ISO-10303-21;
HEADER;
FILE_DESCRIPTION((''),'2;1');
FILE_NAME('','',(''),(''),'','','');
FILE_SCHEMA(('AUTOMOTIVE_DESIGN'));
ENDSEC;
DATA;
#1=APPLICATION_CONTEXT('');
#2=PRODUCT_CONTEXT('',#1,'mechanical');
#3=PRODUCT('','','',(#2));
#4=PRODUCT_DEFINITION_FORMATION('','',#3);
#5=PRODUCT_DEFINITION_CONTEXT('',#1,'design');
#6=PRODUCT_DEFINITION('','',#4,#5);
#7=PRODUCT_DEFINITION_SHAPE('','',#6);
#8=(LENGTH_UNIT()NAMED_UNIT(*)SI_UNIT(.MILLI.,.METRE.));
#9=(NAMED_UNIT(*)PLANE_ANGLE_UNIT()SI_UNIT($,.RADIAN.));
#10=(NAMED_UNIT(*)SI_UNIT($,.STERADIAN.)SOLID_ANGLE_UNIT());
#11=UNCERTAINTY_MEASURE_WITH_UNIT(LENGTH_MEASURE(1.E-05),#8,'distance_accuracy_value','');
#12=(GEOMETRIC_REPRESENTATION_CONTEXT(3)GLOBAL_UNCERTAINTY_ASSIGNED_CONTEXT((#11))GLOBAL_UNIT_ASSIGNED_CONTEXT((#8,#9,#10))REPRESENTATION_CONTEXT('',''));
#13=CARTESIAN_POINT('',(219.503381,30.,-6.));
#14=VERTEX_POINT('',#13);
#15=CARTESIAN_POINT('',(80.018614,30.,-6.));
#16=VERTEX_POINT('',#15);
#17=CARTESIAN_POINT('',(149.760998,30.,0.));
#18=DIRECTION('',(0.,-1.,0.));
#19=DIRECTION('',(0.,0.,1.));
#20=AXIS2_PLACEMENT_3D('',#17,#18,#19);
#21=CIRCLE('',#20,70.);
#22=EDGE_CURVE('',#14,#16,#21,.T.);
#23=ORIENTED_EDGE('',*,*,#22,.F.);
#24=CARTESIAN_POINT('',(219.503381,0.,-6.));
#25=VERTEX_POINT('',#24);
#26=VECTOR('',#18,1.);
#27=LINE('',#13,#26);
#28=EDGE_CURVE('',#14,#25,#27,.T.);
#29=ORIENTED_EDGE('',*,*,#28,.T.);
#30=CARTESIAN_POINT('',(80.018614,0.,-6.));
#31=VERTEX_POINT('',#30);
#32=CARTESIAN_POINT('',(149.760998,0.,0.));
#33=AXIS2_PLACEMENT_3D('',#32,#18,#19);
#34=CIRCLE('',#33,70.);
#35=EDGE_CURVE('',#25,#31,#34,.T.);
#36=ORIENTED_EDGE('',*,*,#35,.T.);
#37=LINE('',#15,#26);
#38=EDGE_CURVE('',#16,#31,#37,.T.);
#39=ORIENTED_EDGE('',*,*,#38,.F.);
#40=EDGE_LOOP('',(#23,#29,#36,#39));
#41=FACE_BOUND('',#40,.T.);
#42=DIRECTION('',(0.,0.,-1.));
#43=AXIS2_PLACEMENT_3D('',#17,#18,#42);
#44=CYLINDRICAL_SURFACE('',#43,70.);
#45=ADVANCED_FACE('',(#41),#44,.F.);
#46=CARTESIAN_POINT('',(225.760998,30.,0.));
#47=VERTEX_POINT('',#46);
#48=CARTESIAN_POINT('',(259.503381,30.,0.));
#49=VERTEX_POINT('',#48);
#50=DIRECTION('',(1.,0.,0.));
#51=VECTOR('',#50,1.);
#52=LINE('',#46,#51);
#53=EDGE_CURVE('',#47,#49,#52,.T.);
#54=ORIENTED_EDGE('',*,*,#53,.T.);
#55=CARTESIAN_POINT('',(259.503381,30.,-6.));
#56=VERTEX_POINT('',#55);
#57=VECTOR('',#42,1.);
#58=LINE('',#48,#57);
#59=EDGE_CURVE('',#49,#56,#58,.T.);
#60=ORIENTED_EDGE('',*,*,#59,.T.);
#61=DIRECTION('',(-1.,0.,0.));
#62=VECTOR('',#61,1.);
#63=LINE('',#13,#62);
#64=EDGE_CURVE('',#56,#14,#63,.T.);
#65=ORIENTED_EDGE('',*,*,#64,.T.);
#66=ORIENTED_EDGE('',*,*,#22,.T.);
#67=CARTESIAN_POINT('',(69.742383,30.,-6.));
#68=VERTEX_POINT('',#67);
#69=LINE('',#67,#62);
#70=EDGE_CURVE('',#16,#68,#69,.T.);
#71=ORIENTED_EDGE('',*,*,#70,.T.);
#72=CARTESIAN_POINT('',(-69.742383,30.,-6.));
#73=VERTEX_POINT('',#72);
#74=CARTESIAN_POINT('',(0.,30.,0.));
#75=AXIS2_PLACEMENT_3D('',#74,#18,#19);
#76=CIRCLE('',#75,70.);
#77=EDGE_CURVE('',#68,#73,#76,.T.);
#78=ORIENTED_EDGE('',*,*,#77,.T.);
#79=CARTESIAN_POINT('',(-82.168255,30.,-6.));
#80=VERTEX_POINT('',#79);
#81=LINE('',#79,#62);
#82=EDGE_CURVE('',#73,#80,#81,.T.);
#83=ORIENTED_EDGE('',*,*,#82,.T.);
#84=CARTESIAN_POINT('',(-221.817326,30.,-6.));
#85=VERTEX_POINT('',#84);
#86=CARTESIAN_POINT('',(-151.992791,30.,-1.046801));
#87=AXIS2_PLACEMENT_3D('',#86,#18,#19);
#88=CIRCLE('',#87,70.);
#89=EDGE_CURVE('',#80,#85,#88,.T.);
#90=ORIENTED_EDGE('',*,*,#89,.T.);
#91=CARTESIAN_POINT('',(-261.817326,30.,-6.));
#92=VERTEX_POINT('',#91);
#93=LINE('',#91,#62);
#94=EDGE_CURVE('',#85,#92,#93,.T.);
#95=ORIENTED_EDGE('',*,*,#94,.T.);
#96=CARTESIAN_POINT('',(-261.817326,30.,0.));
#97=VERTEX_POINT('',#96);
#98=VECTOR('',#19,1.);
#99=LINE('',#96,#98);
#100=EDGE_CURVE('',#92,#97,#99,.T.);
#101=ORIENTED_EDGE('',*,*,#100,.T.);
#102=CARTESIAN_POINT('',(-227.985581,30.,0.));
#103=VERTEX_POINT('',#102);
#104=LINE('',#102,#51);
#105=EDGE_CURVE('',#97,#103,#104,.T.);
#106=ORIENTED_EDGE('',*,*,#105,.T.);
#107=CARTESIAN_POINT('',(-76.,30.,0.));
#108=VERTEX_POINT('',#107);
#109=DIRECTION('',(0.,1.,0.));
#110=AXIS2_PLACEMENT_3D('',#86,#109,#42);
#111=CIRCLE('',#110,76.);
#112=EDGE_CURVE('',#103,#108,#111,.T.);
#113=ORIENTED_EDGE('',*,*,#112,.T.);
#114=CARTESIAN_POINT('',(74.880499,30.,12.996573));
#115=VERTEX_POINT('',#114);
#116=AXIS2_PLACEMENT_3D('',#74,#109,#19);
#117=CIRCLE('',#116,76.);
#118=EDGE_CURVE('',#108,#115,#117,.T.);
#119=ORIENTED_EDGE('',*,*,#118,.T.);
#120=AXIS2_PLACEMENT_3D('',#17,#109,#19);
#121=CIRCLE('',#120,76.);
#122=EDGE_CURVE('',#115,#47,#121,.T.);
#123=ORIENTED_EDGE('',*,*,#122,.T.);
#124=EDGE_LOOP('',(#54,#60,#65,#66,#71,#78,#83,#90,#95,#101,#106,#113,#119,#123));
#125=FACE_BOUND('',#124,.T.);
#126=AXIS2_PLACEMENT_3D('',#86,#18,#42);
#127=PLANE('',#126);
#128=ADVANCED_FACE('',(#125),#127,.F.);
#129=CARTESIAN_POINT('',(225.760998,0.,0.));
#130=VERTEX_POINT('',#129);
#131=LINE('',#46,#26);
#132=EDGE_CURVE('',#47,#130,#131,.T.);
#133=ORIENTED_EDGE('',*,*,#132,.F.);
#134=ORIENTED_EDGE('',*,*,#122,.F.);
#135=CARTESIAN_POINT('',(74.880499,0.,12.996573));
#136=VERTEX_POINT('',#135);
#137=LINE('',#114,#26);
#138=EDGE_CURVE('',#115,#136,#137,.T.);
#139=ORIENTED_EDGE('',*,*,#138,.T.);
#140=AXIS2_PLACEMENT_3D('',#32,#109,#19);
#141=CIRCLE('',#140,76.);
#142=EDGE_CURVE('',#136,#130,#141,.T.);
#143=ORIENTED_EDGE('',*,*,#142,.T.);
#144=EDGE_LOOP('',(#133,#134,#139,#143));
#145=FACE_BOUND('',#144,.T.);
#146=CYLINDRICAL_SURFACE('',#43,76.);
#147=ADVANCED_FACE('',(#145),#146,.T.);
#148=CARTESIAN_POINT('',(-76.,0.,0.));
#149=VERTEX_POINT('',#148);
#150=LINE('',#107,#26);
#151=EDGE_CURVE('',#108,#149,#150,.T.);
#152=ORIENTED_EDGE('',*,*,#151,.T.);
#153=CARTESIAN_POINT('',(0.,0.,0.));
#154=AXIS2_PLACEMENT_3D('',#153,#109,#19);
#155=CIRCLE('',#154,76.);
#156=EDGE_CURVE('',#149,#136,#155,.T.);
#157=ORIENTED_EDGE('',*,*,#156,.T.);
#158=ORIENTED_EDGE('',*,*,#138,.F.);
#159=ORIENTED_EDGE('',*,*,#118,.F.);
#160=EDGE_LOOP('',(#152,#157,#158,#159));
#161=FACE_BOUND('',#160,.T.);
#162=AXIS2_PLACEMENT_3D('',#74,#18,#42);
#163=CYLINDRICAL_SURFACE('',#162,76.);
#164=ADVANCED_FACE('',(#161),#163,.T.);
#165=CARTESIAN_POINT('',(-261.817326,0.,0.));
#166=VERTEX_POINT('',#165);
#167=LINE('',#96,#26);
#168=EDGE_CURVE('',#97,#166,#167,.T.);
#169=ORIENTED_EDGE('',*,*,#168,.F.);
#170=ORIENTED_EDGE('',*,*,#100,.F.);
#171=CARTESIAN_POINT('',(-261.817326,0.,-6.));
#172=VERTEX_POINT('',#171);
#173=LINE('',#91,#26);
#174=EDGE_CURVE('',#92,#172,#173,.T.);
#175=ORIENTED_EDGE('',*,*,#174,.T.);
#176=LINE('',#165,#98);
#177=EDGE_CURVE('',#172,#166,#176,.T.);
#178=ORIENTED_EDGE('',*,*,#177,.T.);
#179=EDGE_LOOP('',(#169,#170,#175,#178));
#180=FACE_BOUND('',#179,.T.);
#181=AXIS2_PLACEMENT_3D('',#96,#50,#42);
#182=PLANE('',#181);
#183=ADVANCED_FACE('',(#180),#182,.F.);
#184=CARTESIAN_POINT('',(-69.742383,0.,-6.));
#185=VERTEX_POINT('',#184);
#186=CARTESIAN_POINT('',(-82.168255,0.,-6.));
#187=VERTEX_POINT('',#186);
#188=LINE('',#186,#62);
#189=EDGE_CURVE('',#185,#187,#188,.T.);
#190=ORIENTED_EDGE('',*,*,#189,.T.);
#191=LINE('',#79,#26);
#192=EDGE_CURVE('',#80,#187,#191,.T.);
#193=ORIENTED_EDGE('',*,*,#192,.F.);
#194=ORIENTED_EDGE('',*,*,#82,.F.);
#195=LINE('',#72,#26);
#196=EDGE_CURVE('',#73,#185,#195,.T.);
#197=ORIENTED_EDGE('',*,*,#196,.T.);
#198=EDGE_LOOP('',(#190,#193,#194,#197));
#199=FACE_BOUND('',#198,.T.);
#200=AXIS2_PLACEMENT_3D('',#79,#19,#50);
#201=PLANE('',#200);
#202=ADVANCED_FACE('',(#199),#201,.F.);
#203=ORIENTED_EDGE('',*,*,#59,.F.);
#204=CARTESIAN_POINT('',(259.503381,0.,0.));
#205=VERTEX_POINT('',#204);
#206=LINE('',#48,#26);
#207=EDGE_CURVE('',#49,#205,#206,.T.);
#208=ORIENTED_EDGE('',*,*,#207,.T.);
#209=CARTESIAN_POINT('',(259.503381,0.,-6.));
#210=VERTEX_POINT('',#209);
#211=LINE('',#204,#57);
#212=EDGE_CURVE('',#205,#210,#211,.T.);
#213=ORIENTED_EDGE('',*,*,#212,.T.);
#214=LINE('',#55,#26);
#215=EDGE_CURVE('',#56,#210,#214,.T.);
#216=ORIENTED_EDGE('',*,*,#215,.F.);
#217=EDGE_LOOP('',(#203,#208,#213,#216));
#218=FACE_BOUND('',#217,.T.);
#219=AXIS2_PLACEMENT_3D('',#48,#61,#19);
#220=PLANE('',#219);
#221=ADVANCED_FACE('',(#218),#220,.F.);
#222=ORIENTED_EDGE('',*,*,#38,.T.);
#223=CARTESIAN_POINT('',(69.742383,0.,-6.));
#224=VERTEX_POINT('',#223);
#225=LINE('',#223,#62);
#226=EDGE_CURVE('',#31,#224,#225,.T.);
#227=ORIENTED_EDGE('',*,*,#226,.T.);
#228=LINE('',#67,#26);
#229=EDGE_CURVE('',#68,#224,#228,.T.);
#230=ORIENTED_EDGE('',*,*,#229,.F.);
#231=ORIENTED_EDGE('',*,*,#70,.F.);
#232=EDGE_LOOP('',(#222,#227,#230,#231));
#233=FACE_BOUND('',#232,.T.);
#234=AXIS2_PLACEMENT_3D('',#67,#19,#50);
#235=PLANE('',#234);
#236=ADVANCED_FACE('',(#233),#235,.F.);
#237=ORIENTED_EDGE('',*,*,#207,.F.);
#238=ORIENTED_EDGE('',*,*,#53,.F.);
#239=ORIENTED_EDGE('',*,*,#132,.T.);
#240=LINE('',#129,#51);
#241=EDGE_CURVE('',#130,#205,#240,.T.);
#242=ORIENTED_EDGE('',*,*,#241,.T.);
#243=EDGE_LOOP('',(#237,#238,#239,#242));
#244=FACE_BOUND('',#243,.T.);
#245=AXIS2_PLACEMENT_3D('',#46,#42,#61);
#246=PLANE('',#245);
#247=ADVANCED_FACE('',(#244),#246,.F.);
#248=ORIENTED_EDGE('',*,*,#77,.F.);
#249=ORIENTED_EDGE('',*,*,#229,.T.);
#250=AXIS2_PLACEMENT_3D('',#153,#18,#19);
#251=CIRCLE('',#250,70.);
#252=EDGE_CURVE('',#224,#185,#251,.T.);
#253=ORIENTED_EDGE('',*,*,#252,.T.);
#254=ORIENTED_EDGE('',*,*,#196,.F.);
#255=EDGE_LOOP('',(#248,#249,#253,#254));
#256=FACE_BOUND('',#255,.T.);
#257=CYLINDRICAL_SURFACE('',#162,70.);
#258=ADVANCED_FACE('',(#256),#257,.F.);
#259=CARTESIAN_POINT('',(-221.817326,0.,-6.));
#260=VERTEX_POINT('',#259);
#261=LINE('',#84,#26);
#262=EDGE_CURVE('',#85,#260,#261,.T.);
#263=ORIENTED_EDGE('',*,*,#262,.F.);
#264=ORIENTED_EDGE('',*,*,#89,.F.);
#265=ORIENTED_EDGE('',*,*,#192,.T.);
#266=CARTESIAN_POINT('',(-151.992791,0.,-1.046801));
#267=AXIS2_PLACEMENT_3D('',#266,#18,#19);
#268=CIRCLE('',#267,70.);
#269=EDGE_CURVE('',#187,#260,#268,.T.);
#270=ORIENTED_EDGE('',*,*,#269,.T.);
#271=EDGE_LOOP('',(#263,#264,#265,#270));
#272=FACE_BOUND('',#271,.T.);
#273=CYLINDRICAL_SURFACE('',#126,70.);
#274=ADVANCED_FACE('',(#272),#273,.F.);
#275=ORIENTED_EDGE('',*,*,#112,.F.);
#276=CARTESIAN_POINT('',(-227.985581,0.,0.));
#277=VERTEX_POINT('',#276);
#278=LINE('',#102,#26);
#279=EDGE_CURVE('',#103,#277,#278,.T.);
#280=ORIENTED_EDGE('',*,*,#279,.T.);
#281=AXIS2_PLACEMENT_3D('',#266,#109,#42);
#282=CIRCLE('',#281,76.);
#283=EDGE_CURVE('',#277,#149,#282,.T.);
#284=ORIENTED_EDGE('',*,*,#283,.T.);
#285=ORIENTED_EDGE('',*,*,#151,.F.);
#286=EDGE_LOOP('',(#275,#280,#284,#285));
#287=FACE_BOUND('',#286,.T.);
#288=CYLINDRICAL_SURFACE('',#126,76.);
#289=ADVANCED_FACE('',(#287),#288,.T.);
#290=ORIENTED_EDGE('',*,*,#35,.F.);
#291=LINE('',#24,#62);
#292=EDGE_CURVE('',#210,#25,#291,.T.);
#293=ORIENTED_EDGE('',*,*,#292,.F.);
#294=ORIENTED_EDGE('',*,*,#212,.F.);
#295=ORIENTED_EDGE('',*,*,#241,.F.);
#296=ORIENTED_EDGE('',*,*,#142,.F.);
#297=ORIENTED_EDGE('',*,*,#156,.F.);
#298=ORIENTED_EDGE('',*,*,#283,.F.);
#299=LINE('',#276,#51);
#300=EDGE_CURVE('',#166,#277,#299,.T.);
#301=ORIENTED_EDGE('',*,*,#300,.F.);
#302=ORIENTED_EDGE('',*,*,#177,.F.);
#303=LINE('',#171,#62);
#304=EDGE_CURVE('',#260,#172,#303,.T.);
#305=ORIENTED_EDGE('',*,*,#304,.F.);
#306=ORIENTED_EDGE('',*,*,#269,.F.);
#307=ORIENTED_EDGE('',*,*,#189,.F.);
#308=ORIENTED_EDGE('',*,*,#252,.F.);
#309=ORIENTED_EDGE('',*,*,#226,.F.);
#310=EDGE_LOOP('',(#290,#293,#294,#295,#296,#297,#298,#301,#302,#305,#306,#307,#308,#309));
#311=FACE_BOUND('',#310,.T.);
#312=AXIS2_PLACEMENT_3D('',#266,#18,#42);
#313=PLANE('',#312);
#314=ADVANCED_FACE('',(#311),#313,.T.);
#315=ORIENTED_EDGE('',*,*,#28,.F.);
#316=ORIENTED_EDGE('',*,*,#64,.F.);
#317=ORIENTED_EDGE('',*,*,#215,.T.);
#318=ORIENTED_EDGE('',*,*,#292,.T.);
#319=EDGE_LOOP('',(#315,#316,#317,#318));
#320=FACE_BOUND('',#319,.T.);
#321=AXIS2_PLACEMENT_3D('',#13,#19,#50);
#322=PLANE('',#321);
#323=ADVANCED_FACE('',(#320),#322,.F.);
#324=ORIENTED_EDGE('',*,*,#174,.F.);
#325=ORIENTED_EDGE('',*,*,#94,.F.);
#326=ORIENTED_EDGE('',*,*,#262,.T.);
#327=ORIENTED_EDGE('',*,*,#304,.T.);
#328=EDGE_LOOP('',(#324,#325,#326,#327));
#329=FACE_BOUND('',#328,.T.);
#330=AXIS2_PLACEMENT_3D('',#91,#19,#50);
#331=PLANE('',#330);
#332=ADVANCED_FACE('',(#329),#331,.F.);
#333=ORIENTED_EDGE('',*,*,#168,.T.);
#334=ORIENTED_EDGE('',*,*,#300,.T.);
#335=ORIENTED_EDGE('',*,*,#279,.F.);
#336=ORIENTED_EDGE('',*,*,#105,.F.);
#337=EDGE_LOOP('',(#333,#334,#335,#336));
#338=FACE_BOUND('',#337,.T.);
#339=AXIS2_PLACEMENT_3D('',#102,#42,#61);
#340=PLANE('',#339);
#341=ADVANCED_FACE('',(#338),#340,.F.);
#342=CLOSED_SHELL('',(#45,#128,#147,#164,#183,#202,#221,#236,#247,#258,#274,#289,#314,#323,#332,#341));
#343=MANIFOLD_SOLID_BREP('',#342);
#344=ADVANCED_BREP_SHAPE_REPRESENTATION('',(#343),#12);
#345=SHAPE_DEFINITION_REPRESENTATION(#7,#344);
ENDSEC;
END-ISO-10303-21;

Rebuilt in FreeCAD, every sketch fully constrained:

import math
import FreeCAD as App
import Part
import Sketcher

V = App.Vector
Q = App.Units.Quantity

doc = App.newDocument("Part")
body = doc.addObject("PartDesign::Body", "Body")

# Sketch on XZ plane
sketch1 = body.newObject("Sketcher::SketchObject", "Sketch")
sketch1.AttachmentSupport = (doc.getObject("XZ_Plane"), [""])
sketch1.MapMode = "FlatFace"
sketch1.addGeometry(Part.LineSegment(V(-262, 0, 0), V(-228, 0, 0)), False)
sketch1.addGeometry(Part.ArcOfCircle(Part.Circle(V(-152, -1, 0), V(0, 0, 1), 76), math.radians(1), math.radians(179)), False)
sketch1.addGeometry(Part.ArcOfCircle(Part.Circle(V(0, 0, 0), V(0, 0, 1), 76), math.radians(10), math.radians(180)), False)
sketch1.addGeometry(Part.ArcOfCircle(Part.Circle(V(150, 0, 0), V(0, 0, 1), 76), math.radians(0), math.radians(170)), False)
sketch1.addGeometry(Part.LineSegment(V(226, 0, 0), V(260, 0, 0)), False)
sketch1.addGeometry(Part.LineSegment(V(260, 0, 0), V(260, -6, 0)), False)
sketch1.addGeometry(Part.LineSegment(V(260, -6, 0), V(220, -6, 0)), False)
sketch1.addGeometry(Part.ArcOfCircle(Part.Circle(V(150, 0, 0), V(0, 0, 1), 70), math.radians(-5), math.radians(185)), False)
sketch1.addGeometry(Part.LineSegment(V(80, -6, 0), V(70, -6, 0)), False)
sketch1.addGeometry(Part.ArcOfCircle(Part.Circle(V(0, 0, 0), V(0, 0, 1), 70), math.radians(-5), math.radians(185)), False)
sketch1.addGeometry(Part.LineSegment(V(-70, -6, 0), V(-82, -6, 0)), False)
sketch1.addGeometry(Part.ArcOfCircle(Part.Circle(V(-152, -1, 0), V(0, 0, 1), 70), math.radians(-4), math.radians(184)), False)
sketch1.addGeometry(Part.LineSegment(V(-222, -6, 0), V(-262, -6, 0)), False)
sketch1.addGeometry(Part.LineSegment(V(-262, -6, 0), V(-262, 0, 0)), False)
sketch1.addConstraint(Sketcher.Constraint("Coincident", 0, 2, 1, 2))
sketch1.addConstraint(Sketcher.Constraint("Coincident", 1, 1, 2, 2))
sketch1.addConstraint(Sketcher.Constraint("Coincident", 2, 1, 3, 2))
sketch1.addConstraint(Sketcher.Constraint("Coincident", 3, 1, 4, 1))
sketch1.addConstraint(Sketcher.Constraint("Coincident", 4, 2, 5, 1))
sketch1.addConstraint(Sketcher.Constraint("Coincident", 5, 2, 6, 1))
sketch1.addConstraint(Sketcher.Constraint("Coincident", 6, 2, 7, 1))
sketch1.addConstraint(Sketcher.Constraint("Coincident", 7, 2, 8, 1))
sketch1.addConstraint(Sketcher.Constraint("Coincident", 8, 2, 9, 1))
sketch1.addConstraint(Sketcher.Constraint("Coincident", 9, 2, 10, 1))
sketch1.addConstraint(Sketcher.Constraint("Coincident", 10, 2, 11, 1))
sketch1.addConstraint(Sketcher.Constraint("Coincident", 11, 2, 12, 1))
sketch1.addConstraint(Sketcher.Constraint("Coincident", 12, 2, 13, 1))
sketch1.addConstraint(Sketcher.Constraint("Coincident", 13, 2, 0, 1))
sketch1.addConstraint(Sketcher.Constraint("Horizontal", 0))
sketch1.addConstraint(Sketcher.Constraint("Horizontal", 4))
sketch1.addConstraint(Sketcher.Constraint("Vertical", 5))
sketch1.addConstraint(Sketcher.Constraint("Horizontal", 6))
sketch1.addConstraint(Sketcher.Constraint("Horizontal", 8))
sketch1.addConstraint(Sketcher.Constraint("Horizontal", 10))
sketch1.addConstraint(Sketcher.Constraint("Horizontal", 12))
sketch1.addConstraint(Sketcher.Constraint("Vertical", 13))
sketch1.addConstraint(Sketcher.Constraint("Coincident", 2, 3, -1, 1))
sketch1.addConstraint(Sketcher.Constraint("Coincident", 9, 3, -1, 1))
sketch1.addConstraint(Sketcher.Constraint("Coincident", 7, 3, 3, 3))
sketch1.addConstraint(Sketcher.Constraint("Coincident", 11, 3, 1, 3))
sketch1.addConstraint(Sketcher.Constraint("Equal", 1, 2))
sketch1.addConstraint(Sketcher.Constraint("Equal", 2, 3))
sketch1.addConstraint(Sketcher.Constraint("Equal", 7, 9))
sketch1.addConstraint(Sketcher.Constraint("Equal", 9, 11))
sketch1.addConstraint(Sketcher.Constraint("PointOnObject", 3, 3, -1))
sketch1.addConstraint(Sketcher.Constraint("PointOnObject", 0, 2, -1))
sketch1.addConstraint(Sketcher.Constraint("PointOnObject", 1, 1, -1))
sketch1.addConstraint(Sketcher.Constraint("PointOnObject", 3, 1, -1))
sketch1.addConstraint(Sketcher.Constraint("Horizontal", 6, 2, 7, 2))
sketch1.addConstraint(Sketcher.Constraint("Horizontal", 8, 2, 9, 2))
sketch1.addConstraint(Sketcher.Constraint("Horizontal", 10, 2, 11, 2))
sketch1.addConstraint(Sketcher.Constraint("Equal", 6, 12))
sketch1.addConstraint(Sketcher.Constraint("Radius", 1, Q("76 mm")))
sketch1.addConstraint(Sketcher.Constraint("Radius", 7, Q("70 mm")))
sketch1.addConstraint(Sketcher.Constraint("DistanceX", 6, 2, 6, 1, Q("40 mm")))
sketch1.addConstraint(Sketcher.Constraint("DistanceY", 5, 2, 5, 1, Q("6 mm")))
sketch1.addConstraint(Sketcher.Constraint("DistanceX", 8, 2, 8, 1, Q("10.276231 mm")))
sketch1.addConstraint(Sketcher.Constraint("DistanceX", 10, 2, 10, 1, Q("12.425871 mm")))
pad1 = body.newObject("PartDesign::Pad", "Pad")
pad1.Profile = sketch1
pad1.Length = 30
pad1.Reversed = True

doc.recompute()
